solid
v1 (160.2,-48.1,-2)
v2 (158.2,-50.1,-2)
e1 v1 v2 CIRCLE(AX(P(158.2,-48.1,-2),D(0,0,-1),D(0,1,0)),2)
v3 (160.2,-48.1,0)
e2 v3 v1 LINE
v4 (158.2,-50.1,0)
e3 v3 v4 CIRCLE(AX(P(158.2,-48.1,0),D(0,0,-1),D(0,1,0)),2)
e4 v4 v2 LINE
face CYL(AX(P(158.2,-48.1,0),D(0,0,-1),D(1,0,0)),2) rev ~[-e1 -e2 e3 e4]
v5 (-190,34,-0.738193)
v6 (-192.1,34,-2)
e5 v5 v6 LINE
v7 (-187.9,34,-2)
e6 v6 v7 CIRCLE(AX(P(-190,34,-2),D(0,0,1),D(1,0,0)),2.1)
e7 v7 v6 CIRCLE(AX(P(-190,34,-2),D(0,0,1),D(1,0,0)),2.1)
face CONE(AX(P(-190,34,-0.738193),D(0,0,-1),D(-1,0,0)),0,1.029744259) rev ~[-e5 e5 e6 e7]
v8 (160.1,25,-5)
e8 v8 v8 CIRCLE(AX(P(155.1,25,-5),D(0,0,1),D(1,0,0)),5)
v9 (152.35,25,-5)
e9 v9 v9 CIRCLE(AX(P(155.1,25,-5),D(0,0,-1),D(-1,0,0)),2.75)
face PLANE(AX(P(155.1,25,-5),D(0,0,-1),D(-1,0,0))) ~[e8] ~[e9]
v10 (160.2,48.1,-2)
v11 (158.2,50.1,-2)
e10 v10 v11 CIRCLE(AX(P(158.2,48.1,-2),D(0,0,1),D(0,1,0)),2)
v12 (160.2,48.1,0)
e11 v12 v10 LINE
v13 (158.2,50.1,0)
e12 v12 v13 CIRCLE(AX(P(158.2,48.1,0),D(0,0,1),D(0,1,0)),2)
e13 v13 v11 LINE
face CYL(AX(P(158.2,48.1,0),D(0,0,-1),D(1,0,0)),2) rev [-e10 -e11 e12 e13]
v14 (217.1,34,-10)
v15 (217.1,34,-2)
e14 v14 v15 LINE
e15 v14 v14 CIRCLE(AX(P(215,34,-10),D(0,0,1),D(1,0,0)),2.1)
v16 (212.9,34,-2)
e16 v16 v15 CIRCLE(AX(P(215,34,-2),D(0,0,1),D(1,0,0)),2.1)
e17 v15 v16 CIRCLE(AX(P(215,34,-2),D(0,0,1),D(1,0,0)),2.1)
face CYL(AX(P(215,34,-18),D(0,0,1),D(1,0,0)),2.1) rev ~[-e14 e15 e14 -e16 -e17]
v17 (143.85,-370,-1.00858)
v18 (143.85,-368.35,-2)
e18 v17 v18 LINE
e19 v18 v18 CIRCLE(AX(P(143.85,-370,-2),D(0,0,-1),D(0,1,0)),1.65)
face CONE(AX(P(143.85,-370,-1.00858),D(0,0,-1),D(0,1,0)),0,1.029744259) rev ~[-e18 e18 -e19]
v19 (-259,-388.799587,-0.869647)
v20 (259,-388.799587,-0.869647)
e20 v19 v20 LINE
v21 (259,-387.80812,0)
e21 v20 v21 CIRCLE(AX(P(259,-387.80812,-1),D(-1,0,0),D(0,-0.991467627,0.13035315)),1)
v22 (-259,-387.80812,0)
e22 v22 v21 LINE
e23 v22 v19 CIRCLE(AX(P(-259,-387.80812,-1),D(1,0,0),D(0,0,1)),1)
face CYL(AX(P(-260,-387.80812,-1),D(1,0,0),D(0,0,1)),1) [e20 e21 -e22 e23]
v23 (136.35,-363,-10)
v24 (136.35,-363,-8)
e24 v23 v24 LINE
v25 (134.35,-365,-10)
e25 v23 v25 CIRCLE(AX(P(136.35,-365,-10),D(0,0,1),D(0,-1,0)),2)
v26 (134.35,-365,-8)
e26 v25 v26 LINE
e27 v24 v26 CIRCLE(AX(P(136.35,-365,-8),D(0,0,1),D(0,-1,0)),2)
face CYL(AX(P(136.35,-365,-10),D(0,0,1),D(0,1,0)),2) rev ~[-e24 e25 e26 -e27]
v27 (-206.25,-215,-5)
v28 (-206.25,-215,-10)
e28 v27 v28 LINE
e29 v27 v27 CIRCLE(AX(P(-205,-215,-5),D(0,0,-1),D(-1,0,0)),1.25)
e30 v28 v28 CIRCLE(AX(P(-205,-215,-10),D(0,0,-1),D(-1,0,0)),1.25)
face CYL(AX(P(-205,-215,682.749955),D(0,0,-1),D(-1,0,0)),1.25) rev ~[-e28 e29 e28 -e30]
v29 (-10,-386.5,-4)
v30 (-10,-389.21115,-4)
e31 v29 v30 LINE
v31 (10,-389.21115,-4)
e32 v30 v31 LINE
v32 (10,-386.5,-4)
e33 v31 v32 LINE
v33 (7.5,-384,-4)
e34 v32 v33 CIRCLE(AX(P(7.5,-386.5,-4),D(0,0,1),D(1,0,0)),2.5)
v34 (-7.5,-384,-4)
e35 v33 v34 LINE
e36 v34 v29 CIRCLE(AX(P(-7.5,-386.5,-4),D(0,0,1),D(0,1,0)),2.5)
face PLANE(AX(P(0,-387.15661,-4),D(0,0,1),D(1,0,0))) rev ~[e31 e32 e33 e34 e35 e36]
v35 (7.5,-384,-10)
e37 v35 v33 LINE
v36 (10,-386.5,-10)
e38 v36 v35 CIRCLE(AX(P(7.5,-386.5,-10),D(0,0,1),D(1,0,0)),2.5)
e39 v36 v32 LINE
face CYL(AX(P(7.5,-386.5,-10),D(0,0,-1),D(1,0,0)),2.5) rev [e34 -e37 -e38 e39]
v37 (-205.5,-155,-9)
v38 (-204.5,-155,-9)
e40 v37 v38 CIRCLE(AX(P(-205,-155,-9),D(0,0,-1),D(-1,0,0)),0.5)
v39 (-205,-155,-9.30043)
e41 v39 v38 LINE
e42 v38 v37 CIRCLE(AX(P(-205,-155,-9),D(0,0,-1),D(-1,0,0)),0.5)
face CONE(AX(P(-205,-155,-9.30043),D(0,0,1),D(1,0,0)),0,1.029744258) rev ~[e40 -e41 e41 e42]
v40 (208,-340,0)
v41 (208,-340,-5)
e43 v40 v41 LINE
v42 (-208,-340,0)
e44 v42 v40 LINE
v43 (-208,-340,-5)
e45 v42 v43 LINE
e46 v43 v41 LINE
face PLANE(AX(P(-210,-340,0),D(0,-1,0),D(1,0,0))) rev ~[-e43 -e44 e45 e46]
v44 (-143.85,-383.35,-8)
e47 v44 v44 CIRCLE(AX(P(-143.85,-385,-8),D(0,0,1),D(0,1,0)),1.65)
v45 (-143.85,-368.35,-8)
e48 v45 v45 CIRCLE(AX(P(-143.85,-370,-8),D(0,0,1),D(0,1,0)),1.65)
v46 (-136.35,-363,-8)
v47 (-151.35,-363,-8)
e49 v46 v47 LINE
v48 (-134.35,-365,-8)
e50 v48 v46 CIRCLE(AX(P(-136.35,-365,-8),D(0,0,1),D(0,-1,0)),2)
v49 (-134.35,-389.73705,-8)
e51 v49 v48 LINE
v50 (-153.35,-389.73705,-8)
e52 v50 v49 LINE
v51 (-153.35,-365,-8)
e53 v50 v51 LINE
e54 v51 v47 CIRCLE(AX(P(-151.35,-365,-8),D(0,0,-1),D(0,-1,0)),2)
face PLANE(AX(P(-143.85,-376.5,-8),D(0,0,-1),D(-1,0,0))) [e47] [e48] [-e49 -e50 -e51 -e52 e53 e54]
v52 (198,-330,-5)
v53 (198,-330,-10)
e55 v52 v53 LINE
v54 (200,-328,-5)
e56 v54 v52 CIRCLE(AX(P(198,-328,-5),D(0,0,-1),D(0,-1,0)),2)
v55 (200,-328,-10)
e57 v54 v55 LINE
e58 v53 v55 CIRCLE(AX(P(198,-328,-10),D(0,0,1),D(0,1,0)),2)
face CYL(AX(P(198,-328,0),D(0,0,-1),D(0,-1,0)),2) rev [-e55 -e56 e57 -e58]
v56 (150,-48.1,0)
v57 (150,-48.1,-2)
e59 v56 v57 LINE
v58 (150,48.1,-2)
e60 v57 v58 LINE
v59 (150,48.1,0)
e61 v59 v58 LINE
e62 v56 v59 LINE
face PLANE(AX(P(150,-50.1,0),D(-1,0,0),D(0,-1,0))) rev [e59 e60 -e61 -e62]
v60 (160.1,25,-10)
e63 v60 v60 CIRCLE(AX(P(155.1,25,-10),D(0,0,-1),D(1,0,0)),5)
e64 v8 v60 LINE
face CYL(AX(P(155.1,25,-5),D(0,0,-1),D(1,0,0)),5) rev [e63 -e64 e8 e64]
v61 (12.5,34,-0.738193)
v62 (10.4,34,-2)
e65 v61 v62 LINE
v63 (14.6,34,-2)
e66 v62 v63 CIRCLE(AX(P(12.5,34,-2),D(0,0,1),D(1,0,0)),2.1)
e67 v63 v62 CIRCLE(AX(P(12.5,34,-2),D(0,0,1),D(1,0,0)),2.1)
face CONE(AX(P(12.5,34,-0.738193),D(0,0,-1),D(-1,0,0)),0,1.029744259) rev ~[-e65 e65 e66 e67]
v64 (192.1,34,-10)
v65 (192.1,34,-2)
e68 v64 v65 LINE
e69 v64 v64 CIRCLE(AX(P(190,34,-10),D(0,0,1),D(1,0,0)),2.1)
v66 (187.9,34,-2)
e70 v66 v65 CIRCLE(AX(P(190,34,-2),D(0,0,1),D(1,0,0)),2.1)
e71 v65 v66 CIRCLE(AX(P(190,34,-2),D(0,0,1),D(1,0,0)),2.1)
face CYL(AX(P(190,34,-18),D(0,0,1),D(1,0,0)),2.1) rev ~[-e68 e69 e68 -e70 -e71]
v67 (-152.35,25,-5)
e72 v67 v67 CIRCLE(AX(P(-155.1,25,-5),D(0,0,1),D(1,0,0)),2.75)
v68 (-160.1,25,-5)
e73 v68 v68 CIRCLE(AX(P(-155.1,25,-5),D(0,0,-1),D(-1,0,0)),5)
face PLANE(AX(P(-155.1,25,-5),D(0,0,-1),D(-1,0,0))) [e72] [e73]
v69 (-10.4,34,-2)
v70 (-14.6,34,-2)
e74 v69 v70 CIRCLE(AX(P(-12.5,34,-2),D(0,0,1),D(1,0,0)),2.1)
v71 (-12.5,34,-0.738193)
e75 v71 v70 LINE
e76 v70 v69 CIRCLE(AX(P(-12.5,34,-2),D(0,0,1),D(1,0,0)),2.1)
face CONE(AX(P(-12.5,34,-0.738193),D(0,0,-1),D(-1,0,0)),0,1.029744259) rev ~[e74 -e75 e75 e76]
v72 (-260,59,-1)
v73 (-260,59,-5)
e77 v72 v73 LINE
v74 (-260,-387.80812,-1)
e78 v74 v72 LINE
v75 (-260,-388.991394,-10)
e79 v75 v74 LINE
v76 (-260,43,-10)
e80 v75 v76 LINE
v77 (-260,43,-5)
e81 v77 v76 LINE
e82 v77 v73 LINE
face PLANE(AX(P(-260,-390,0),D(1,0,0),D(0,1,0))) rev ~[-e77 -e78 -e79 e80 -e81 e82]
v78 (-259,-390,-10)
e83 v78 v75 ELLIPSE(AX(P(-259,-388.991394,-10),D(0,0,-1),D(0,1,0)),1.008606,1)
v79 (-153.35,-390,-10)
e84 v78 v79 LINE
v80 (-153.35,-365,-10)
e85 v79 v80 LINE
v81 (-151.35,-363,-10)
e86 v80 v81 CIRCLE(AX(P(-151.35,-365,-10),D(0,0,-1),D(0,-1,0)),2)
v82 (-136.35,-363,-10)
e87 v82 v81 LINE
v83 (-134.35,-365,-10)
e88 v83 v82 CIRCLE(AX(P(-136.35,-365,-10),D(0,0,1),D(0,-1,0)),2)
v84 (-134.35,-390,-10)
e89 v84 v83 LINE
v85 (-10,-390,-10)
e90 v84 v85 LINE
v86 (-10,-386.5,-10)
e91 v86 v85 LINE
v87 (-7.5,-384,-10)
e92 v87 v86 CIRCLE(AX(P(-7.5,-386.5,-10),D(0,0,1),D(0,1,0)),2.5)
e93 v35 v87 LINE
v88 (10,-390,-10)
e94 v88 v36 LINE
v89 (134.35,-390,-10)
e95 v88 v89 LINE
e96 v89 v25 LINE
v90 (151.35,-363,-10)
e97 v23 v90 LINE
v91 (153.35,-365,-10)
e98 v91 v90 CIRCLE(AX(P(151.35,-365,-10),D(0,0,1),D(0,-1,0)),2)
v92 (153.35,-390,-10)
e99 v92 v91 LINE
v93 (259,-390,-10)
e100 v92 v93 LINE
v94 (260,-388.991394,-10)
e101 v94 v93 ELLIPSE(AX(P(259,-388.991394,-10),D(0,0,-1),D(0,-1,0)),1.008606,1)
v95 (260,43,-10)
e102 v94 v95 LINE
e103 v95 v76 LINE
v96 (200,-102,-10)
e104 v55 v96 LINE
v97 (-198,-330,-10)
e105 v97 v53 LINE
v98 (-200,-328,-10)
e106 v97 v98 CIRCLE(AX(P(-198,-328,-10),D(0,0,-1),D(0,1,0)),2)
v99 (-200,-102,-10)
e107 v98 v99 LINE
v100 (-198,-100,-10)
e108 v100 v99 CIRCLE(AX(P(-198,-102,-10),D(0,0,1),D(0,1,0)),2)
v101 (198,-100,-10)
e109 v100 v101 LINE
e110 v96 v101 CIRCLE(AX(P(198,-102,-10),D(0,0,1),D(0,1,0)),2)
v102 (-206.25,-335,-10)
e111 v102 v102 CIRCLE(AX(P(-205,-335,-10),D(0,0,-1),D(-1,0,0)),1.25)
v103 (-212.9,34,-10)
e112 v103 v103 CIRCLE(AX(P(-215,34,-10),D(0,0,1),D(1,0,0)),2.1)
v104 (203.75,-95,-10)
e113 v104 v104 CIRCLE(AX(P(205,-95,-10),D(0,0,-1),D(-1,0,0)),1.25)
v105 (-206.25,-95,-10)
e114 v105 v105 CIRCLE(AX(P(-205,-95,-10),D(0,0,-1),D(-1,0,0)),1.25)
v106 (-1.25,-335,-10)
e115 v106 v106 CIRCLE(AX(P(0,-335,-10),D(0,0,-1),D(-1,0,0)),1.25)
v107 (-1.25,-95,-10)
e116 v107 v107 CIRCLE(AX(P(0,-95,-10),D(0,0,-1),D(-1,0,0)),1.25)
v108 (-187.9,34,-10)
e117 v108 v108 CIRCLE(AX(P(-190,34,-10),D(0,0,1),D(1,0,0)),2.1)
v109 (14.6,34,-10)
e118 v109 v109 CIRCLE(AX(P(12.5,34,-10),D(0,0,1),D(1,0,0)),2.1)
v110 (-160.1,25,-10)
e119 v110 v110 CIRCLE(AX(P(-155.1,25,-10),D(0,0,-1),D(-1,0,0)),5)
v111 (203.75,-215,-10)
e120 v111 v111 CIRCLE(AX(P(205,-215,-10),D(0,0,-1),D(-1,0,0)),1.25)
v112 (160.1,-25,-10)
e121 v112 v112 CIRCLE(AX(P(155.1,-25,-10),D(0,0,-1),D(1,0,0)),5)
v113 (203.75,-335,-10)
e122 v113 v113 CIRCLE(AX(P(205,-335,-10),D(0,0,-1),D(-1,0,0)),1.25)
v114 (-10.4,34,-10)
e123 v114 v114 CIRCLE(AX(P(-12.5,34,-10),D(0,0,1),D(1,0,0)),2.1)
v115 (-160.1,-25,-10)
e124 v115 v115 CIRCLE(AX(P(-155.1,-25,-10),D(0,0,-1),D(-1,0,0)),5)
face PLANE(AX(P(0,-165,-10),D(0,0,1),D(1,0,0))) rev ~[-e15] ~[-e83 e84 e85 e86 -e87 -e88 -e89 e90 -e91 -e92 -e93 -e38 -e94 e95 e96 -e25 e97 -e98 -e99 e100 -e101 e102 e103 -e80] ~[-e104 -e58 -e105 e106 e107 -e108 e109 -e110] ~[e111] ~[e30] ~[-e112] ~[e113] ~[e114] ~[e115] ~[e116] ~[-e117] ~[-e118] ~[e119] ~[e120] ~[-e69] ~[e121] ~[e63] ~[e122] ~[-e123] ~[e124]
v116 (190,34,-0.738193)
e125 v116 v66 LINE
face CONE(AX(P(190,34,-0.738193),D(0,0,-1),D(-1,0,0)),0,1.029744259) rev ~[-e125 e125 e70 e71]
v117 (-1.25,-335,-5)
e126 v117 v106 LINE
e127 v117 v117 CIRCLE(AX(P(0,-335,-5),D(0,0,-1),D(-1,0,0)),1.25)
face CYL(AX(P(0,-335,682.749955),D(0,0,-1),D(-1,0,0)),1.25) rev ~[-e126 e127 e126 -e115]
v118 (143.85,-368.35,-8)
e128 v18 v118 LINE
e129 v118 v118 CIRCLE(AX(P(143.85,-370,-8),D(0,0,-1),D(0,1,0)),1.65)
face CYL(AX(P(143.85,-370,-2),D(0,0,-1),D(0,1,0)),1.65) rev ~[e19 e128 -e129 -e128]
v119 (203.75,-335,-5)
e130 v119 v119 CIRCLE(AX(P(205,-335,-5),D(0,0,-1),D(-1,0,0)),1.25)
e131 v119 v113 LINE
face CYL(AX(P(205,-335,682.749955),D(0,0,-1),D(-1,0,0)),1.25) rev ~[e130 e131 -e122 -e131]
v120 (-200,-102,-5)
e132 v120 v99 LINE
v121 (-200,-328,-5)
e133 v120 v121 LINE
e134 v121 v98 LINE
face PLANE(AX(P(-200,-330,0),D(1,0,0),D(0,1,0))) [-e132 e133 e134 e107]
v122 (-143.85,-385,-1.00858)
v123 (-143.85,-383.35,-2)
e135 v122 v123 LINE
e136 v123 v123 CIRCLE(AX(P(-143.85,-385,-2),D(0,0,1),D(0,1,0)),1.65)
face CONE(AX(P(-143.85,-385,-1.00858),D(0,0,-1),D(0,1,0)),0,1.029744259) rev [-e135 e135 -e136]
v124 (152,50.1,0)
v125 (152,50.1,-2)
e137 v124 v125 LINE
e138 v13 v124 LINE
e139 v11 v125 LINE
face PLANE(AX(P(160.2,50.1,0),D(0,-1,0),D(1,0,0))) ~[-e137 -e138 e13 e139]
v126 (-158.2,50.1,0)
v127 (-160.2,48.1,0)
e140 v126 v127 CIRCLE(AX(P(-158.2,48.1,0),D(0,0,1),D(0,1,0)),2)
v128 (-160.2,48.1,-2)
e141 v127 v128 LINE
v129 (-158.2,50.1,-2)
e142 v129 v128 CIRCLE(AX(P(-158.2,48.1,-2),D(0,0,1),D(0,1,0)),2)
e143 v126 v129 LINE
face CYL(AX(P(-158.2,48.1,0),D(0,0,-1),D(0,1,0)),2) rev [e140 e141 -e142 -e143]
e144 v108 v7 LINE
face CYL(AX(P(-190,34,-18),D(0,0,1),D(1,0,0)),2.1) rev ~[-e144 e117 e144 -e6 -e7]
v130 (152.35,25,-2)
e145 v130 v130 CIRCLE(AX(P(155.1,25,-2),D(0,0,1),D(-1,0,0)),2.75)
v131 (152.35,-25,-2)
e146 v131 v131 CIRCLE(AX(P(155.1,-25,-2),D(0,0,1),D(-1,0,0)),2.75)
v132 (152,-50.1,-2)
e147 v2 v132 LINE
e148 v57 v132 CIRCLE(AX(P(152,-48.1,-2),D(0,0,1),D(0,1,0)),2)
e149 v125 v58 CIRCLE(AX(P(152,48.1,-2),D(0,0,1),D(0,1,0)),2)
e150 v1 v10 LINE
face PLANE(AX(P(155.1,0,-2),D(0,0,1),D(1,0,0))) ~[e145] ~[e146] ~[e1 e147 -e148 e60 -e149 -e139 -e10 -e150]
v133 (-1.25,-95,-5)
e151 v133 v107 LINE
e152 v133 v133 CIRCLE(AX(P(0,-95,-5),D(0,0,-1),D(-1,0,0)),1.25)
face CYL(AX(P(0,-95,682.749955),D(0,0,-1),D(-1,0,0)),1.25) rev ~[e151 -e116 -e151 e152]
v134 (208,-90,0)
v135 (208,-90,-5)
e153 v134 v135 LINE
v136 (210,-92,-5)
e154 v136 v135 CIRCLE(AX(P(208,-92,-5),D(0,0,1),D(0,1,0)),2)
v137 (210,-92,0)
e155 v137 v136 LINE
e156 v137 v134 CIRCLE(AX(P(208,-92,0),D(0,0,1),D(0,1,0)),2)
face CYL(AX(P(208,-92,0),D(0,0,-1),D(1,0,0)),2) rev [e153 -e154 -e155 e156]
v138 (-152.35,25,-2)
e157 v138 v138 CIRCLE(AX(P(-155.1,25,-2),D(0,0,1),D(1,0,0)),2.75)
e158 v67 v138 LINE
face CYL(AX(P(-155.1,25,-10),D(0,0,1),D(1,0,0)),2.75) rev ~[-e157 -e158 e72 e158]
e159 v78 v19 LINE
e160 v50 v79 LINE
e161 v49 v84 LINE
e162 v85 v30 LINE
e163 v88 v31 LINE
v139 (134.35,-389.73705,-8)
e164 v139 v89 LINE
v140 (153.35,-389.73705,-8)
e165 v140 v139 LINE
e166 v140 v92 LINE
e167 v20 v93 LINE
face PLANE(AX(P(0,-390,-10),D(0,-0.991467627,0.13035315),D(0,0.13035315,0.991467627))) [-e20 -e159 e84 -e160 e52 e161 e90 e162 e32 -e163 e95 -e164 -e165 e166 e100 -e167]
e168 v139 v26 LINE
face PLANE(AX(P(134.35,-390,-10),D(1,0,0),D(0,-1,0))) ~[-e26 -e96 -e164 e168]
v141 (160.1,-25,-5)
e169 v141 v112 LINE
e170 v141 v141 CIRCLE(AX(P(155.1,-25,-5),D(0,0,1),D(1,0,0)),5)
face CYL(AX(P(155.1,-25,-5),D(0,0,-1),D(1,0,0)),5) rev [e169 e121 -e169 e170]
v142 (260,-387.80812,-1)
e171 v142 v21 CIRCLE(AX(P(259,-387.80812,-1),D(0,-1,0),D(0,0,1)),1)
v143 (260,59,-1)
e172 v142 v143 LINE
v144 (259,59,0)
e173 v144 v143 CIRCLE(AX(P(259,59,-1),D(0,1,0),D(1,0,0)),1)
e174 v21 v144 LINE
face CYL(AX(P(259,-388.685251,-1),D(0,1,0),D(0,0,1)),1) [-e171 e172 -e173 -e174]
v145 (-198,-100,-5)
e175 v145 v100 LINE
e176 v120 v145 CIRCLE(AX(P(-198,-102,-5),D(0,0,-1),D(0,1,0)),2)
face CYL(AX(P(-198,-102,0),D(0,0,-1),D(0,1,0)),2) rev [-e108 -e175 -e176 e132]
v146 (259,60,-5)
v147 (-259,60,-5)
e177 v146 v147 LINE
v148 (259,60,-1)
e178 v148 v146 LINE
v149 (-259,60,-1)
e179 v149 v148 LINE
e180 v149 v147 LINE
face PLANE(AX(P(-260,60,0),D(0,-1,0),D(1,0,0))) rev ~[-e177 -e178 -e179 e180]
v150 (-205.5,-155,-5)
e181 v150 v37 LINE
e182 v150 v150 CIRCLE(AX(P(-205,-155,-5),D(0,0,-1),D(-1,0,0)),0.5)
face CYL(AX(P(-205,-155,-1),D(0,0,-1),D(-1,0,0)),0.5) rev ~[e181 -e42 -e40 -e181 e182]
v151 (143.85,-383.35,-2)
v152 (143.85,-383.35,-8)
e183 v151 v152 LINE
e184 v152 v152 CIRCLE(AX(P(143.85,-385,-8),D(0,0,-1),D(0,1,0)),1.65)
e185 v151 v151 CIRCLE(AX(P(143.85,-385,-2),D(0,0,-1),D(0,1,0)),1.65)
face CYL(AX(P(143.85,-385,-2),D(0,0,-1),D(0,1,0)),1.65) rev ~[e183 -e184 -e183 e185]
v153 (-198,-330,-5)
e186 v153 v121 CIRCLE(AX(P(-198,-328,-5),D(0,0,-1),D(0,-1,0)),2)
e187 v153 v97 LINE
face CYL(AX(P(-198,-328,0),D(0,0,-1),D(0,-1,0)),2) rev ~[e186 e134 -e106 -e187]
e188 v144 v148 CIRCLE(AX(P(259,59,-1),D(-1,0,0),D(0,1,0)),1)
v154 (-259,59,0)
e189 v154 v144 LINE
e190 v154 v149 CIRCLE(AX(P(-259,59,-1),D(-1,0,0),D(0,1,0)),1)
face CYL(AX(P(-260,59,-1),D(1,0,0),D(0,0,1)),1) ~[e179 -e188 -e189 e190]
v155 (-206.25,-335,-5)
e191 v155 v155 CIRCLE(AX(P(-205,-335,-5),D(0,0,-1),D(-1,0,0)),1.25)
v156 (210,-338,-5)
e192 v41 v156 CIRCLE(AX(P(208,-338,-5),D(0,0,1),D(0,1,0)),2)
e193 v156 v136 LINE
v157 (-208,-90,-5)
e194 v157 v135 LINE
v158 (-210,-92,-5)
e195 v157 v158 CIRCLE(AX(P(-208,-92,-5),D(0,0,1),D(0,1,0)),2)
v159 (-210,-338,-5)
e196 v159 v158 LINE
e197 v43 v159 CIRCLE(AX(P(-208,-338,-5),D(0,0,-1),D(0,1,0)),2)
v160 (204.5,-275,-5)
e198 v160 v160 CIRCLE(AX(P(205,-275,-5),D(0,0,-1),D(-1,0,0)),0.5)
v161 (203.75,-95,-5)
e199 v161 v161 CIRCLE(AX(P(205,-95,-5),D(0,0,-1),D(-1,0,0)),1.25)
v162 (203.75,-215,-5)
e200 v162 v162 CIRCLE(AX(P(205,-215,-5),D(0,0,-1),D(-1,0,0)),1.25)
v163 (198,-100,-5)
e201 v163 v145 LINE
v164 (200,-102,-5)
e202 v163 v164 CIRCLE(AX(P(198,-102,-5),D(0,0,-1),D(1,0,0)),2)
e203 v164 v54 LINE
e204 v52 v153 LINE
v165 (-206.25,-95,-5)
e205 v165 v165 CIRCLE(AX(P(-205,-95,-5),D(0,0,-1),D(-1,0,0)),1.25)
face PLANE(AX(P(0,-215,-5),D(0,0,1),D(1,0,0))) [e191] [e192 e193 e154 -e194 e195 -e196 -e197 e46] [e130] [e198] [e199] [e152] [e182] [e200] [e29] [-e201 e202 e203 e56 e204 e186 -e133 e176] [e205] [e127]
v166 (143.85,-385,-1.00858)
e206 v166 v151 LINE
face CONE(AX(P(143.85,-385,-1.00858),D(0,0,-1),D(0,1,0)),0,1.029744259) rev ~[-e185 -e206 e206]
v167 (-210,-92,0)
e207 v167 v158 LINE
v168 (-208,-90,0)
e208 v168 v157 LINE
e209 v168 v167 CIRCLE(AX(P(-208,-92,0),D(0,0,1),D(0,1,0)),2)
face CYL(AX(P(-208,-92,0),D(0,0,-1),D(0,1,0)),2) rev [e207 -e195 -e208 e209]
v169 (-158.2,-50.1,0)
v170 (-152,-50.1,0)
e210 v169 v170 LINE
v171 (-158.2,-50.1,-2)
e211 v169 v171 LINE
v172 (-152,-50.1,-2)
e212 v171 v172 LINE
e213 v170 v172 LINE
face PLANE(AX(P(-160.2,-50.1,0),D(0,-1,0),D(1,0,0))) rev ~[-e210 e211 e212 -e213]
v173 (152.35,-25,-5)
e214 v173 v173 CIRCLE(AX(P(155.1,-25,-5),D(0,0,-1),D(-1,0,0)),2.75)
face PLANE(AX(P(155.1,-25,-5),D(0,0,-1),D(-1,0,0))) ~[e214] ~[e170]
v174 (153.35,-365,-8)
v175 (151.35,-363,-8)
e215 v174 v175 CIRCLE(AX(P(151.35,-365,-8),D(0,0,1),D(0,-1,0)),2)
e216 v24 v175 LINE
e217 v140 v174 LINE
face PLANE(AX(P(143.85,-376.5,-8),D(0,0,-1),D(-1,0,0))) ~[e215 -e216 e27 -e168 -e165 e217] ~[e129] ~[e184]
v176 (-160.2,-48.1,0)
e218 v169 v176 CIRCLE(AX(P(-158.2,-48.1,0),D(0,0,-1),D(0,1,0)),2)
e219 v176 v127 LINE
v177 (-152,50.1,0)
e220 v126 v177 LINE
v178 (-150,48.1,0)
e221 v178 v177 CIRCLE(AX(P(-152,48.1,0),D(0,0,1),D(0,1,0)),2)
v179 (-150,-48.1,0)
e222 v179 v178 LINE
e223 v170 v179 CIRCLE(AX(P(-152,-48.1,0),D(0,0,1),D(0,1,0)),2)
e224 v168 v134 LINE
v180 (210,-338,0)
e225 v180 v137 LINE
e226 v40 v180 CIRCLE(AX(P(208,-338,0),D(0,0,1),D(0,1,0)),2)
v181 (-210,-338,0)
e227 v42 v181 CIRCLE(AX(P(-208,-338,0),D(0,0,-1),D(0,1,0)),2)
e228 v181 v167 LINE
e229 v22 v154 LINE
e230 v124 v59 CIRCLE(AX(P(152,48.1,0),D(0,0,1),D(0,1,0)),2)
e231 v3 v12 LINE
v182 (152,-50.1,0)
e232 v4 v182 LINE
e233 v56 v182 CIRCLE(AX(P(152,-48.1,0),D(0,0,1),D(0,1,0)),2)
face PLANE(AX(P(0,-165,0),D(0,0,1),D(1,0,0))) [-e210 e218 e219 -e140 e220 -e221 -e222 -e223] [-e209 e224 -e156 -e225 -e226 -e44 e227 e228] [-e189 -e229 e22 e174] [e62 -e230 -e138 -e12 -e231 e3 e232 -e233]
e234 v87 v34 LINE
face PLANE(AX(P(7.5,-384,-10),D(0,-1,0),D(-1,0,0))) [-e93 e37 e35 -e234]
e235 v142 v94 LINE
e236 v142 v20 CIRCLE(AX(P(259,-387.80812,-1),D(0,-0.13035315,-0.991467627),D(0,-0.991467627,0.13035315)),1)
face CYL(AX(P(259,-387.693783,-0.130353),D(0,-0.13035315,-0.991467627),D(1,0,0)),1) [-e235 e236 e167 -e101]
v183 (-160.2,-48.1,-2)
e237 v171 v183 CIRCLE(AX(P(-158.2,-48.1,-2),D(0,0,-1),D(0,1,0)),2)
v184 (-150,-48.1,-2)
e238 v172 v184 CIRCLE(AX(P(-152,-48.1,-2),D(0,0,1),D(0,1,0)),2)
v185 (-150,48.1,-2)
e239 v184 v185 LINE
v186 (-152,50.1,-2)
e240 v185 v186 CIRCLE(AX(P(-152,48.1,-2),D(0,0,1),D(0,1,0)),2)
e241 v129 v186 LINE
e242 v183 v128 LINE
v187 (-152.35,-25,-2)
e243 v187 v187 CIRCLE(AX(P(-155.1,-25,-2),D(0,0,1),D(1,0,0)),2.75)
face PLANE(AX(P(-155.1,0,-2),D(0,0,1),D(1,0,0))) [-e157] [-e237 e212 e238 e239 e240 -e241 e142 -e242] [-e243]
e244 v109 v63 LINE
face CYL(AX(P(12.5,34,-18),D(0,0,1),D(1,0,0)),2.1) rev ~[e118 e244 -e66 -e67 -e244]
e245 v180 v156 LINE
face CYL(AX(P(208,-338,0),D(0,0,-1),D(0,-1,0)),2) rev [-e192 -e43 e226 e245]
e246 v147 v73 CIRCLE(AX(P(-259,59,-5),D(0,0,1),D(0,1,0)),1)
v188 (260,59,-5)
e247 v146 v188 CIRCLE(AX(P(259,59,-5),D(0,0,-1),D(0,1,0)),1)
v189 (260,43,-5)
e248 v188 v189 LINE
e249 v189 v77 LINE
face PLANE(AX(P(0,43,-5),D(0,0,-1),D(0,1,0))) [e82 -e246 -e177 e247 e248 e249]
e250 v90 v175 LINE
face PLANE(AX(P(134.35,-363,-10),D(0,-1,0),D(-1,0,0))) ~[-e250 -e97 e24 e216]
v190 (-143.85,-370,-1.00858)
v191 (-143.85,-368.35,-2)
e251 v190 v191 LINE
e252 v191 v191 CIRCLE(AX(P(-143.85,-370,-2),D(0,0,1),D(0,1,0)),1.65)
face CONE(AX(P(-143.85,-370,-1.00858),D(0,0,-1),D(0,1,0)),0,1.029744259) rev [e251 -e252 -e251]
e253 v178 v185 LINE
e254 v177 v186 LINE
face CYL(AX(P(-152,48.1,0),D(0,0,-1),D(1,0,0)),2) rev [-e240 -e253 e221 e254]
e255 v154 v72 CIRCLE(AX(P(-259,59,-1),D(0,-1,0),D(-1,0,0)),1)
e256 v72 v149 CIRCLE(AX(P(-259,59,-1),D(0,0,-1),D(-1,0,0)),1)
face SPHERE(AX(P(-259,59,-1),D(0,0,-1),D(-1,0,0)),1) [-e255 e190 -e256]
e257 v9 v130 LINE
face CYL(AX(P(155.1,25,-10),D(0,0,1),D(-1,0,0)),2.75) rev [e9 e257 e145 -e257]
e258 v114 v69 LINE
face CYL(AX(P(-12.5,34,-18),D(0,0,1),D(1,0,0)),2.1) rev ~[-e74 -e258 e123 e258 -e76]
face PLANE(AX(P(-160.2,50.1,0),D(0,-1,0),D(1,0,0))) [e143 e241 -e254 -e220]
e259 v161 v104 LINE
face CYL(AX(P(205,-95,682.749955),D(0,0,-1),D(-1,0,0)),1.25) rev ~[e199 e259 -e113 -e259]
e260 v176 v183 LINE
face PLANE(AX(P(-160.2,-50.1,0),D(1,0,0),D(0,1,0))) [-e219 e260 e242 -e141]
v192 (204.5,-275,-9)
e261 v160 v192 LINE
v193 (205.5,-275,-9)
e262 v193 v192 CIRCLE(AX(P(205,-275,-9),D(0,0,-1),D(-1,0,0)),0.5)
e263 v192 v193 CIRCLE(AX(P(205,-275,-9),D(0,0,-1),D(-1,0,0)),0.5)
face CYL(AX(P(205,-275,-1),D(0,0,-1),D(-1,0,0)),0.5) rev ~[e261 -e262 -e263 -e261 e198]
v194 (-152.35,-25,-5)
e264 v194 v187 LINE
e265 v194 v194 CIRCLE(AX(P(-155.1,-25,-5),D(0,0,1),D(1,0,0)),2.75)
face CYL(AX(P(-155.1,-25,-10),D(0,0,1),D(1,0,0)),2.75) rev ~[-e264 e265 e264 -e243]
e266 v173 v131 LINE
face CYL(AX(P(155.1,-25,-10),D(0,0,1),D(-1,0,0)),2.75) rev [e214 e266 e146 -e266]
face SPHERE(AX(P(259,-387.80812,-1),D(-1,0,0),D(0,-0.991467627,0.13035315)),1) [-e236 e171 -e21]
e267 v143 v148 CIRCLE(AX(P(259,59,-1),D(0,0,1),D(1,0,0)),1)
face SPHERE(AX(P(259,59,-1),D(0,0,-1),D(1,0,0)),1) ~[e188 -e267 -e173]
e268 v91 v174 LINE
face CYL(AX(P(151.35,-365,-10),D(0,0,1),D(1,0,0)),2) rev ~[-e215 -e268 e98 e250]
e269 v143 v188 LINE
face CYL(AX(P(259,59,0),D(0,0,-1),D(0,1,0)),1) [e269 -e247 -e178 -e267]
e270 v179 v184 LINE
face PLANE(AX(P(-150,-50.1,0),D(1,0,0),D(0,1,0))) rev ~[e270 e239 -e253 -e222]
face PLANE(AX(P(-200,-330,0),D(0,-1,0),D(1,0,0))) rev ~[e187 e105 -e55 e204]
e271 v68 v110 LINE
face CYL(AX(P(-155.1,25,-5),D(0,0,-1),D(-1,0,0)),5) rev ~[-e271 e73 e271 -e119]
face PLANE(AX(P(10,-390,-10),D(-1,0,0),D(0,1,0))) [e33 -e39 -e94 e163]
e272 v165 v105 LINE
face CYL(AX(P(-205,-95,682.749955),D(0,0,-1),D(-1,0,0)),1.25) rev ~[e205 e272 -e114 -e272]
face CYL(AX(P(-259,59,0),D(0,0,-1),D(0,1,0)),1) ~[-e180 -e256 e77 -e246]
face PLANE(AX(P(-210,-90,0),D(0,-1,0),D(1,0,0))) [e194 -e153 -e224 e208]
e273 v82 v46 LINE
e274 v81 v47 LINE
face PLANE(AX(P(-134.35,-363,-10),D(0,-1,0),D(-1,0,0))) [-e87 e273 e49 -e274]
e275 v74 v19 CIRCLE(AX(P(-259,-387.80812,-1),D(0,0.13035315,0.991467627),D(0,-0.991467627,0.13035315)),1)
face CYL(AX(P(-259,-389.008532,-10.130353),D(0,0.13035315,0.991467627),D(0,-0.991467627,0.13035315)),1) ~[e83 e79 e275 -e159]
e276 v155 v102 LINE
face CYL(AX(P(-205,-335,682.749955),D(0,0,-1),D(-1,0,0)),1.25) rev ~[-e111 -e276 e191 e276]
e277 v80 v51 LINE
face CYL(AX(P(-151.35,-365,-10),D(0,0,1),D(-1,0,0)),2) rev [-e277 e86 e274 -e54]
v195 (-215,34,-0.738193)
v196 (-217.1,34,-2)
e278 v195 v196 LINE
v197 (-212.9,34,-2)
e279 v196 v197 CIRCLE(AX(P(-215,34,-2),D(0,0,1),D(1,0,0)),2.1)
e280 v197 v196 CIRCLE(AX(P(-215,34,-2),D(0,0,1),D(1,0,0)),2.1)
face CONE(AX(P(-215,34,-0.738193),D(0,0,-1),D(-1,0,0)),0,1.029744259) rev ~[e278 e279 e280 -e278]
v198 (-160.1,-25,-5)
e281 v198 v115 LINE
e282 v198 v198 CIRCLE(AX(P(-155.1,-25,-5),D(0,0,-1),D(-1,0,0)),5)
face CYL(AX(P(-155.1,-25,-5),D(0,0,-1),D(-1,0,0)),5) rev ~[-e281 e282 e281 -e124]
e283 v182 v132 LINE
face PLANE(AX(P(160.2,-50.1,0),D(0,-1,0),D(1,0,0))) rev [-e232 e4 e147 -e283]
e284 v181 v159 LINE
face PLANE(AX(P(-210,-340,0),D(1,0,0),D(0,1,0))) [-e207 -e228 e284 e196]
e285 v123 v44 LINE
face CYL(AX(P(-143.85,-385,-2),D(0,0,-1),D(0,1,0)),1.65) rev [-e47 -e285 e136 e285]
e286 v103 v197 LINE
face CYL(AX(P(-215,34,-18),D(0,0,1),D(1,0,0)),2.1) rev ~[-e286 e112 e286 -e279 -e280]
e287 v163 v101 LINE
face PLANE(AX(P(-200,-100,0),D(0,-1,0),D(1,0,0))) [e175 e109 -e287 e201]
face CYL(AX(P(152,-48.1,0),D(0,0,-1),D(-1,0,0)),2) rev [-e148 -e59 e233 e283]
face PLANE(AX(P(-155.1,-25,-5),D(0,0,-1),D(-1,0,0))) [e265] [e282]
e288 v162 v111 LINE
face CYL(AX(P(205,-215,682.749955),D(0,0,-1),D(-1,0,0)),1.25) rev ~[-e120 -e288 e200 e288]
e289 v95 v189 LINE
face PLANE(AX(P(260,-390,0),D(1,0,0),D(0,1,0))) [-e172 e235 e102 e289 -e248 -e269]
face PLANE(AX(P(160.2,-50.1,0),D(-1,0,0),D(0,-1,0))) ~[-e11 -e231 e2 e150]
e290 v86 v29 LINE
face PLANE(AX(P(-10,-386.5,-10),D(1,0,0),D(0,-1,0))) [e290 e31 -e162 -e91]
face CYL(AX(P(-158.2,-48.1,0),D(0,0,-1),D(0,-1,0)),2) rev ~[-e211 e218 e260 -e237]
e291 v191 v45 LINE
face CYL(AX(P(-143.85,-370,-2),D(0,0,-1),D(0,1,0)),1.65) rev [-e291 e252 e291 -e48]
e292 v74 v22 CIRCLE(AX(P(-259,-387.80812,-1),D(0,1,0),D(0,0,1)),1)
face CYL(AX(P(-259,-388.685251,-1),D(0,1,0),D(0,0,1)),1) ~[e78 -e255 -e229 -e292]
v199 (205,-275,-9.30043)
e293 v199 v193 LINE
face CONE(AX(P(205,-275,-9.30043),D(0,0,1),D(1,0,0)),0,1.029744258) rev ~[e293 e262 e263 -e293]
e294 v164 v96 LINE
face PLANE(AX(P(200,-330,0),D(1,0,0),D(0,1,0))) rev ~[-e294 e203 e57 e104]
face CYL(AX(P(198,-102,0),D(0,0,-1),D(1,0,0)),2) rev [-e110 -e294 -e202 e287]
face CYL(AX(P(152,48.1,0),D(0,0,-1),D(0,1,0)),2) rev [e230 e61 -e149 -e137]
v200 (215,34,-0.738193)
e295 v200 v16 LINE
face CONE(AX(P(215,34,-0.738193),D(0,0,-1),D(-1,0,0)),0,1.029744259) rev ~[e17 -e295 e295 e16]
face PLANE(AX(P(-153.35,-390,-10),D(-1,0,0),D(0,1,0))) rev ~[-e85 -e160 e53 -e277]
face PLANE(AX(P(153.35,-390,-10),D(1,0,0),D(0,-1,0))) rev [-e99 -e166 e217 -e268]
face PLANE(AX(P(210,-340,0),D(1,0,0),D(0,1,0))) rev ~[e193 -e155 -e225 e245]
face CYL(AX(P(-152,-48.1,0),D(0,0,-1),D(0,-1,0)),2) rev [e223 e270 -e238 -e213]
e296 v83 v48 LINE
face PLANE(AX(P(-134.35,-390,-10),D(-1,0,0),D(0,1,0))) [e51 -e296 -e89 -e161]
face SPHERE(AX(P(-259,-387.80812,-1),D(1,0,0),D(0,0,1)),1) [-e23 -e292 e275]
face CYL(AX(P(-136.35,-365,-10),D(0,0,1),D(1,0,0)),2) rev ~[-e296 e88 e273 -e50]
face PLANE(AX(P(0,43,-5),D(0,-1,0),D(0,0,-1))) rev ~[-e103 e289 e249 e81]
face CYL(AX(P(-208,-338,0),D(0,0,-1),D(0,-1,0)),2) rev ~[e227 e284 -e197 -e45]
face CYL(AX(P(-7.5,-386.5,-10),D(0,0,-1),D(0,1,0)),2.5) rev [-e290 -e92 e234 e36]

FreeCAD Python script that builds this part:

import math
import FreeCAD as App
import Part
import Sketcher

V = App.Vector
Q = App.Units.Quantity


def edges_at(feature, points):
    """Names of the edges that pass closest to the given points."""
    edges = feature.Shape.Edges
    near = lambda p: min(range(len(edges)), key=lambda i: edges[i].distToShape(Part.Vertex(*p))[0])
    return sorted({f"Edge{near(p) + 1}" for p in points})


def add_polygon(sketch, points):
    """Adds a closed chain of lines whose ends are joined by coincident constraints."""
    first, n = sketch.GeometryCount, len(points)
    for a, b in zip(points, points[1:] + points[:1]):
        sketch.addGeometry(Part.LineSegment(App.Vector(*a, 0), App.Vector(*b, 0)), False)
    for i in range(n):
        sketch.addConstraint(Sketcher.Constraint("Coincident", first + i, 2, first + (i + 1) % n, 1))

doc = App.newDocument("Part")
body = doc.addObject("PartDesign::Body", "Body")

# Sketch on XY plane
sketch1 = body.newObject("Sketcher::SketchObject", "Sketch")
sketch1.AttachmentSupport = (doc.getObject("XY_Plane"), [""])
sketch1.MapMode = "FlatFace"
add_polygon(sketch1, [(-260, 60), (-260, -390), (260, -390), (260, 60)])  # lines 0-3
sketch1.addConstraint(Sketcher.Constraint("Vertical", 0))
sketch1.addConstraint(Sketcher.Constraint("Horizontal", 1))
sketch1.addConstraint(Sketcher.Constraint("Vertical", 2))
sketch1.addConstraint(Sketcher.Constraint("Horizontal", 3))
sketch1.addConstraint(Sketcher.Constraint("DistanceX", 1, 1, 1, 2, Q("520 mm")))
sketch1.addConstraint(Sketcher.Constraint("DistanceY", 0, 2, 0, 1, Q("450 mm")))
sketch1.addConstraint(Sketcher.Constraint("DistanceX", 0, 2, -1, 1, Q("260 mm")))
sketch1.addConstraint(Sketcher.Constraint("DistanceY", 0, 2, -1, 1, Q("390 mm")))
pad1 = body.newObject("PartDesign::Pad", "Pad")
pad1.Profile = sketch1
pad1.Length = 10
pad1.Reversed = True

# Sketch on XY plane
sketch2 = body.newObject("Sketcher::SketchObject", "Sketch001")
sketch2.AttachmentSupport = (doc.getObject("XY_Plane"), [""])
sketch2.MapMode = "FlatFace"
add_polygon(sketch2, [(-160, 50), (-160, -50), (-150, -50), (-150, 50)])  # lines 0-3
sketch2.addConstraint(Sketcher.Constraint("Vertical", 0))
sketch2.addConstraint(Sketcher.Constraint("Horizontal", 1))
sketch2.addConstraint(Sketcher.Constraint("Vertical", 2))
sketch2.addConstraint(Sketcher.Constraint("Horizontal", 3))
sketch2.addConstraint(Sketcher.Constraint("DistanceX", 1, 1, 1, 2, Q("10.2 mm")))
sketch2.addConstraint(Sketcher.Constraint("DistanceY", 0, 2, 0, 1, Q("100.2 mm")))
sketch2.addConstraint(Sketcher.Constraint("DistanceX", 1, 2, -1, 1, Q("150 mm")))
sketch2.addConstraint(Sketcher.Constraint("DistanceY", 0, 2, -1, 1, Q("50.1 mm")))
pocket1 = body.newObject("PartDesign::Pocket", "Pocket")
pocket1.Profile = sketch2
pocket1.Length = 2
doc.recompute()

fillet = body.newObject("PartDesign::Fillet", "Fillet")
fillet.Base = (pocket1, edges_at(pocket1, [
    (-150, 50.1, -1),
    (-150, -50.1, -1),
    (-160.2, -50.1, -1),
    (-160.2, 50.1, -1),
]))
fillet.Radius = 2

# Sketch on XY plane
sketch3 = body.newObject("Sketcher::SketchObject", "Sketch002")
sketch3.AttachmentSupport = (doc.getObject("XY_Plane"), [""])
sketch3.MapMode = "FlatFace"
sketch3.AttachmentOffset = App.Placement(V(0, 0, -10), App.Rotation())
sketch3.addGeometry(Part.Circle(V(-155.1, 25, 0), V(0, 0, 1), 2.8), False)
sketch3.addGeometry(Part.Circle(V(-155.1, -25, 0), V(0, 0, 1), 2.8), False)
sketch3.addConstraint(Sketcher.Constraint("Equal", 0, 1))
sketch3.addConstraint(Sketcher.Constraint("Symmetric", 0, 3, 1, 3, -1))
sketch3.addConstraint(Sketcher.Constraint("Diameter", 0, Q("5.5 mm")))
sketch3.addConstraint(Sketcher.Constraint("DistanceY", -1, 1, 0, 3, Q("25 mm")))
sketch3.addConstraint(Sketcher.Constraint("DistanceX", 0, 3, -1, 1, Q("155.1 mm")))
doc.recompute()
hole = body.newObject("PartDesign::Hole", "Hole")
hole.Profile = sketch3
hole.ThreadType = "None"
hole.Diameter = 5.5
hole.DepthType = "ThroughAll"
hole.HoleCutType = "Counterbore"
hole.HoleCutDiameter = 10
hole.HoleCutDepth = 5
hole.Reversed = True
doc.recompute()

mirrored = body.newObject("PartDesign::Mirrored", "Mirrored")
mirrored.Originals = [pocket1, hole]
mirrored.MirrorPlane = (doc.getObject("YZ_Plane"), [""])
body.Tip = mirrored
doc.recompute()

fillet2 = body.newObject("PartDesign::Fillet", "Fillet001")
fillet2.Base = (mirrored, edges_at(mirrored, [
    (150, 50.1, -1),
    (150, -50.1, -1),
    (160.2, -50.1, -1),
    (160.2, 50.1, -1),
]))
fillet2.Radius = 2

# Sketch on XY plane
sketch4 = body.newObject("Sketcher::SketchObject", "Sketch003")
sketch4.AttachmentSupport = (doc.getObject("XY_Plane"), [""])
sketch4.MapMode = "FlatFace"
add_polygon(sketch4, [(-200, -100), (-200, -330), (200, -330), (200, -100)])  # lines 0-3
sketch4.addConstraint(Sketcher.Constraint("Vertical", 0))
sketch4.addConstraint(Sketcher.Constraint("Horizontal", 1))
sketch4.addConstraint(Sketcher.Constraint("Vertical", 2))
sketch4.addConstraint(Sketcher.Constraint("Horizontal", 3))
sketch4.addConstraint(Sketcher.Constraint("DistanceX", 1, 1, 1, 2, Q("400 mm")))
sketch4.addConstraint(Sketcher.Constraint("DistanceY", 0, 2, 0, 1, Q("230 mm")))
sketch4.addConstraint(Sketcher.Constraint("DistanceX", 0, 2, -1, 1, Q("200 mm")))
sketch4.addConstraint(Sketcher.Constraint("DistanceY", 0, 2, -1, 1, Q("330 mm")))
pocket2 = body.newObject("PartDesign::Pocket", "Pocket001")
pocket2.Profile = sketch4
pocket2.Type = "ThroughAll"
doc.recompute()

fillet3 = body.newObject("PartDesign::Fillet", "Fillet002")
fillet3.Base = (pocket2, edges_at(pocket2, [
    (200, -100, -5),
    (200, -330, -5),
    (-200, -330, -5),
    (-200, -100, -5),
]))
fillet3.Radius = 2

# Sketch on XY plane
sketch5 = body.newObject("Sketcher::SketchObject", "Sketch004")
sketch5.AttachmentSupport = (doc.getObject("XY_Plane"), [""])
sketch5.MapMode = "FlatFace"
add_polygon(sketch5, [(-210, -90), (-210, -340), (210, -340), (210, -90)])  # lines 0-3
sketch5.addConstraint(Sketcher.Constraint("Vertical", 0))
sketch5.addConstraint(Sketcher.Constraint("Horizontal", 1))
sketch5.addConstraint(Sketcher.Constraint("Vertical", 2))
sketch5.addConstraint(Sketcher.Constraint("Horizontal", 3))
sketch5.addConstraint(Sketcher.Constraint("DistanceX", 1, 1, 1, 2, Q("420 mm")))
sketch5.addConstraint(Sketcher.Constraint("DistanceY", 0, 2, 0, 1, Q("250 mm")))
sketch5.addConstraint(Sketcher.Constraint("DistanceX", 0, 2, -1, 1, Q("210 mm")))
sketch5.addConstraint(Sketcher.Constraint("DistanceY", 0, 2, -1, 1, Q("340 mm")))
pocket3 = body.newObject("PartDesign::Pocket", "Pocket002")
pocket3.Profile = sketch5
pocket3.Length = 5
doc.recompute()

fillet4 = body.newObject("PartDesign::Fillet", "Fillet003")
fillet4.Base = (pocket3, edges_at(pocket3, [
    (210, -90, -2.5),
    (210, -340, -2.5),
    (-210, -340, -2.5),
    (-210, -90, -2.5),
]))
fillet4.Radius = 2

# Sketch on XY plane
sketch6 = body.newObject("Sketcher::SketchObject", "Sketch005")
sketch6.AttachmentSupport = (doc.getObject("XY_Plane"), [""])
sketch6.MapMode = "FlatFace"
sketch6.AttachmentOffset = App.Placement(V(0, 0, -5), App.Rotation())
sketch6.addGeometry(Part.Circle(V(-205, -95, 0), V(0, 0, 1), 1.2), False)
sketch6.addGeometry(Part.Circle(V(0, -95, 0), V(0, 0, 1), 1.2), False)
sketch6.addGeometry(Part.Circle(V(-205, -215, 0), V(0, 0, 1), 1.2), False)
sketch6.addGeometry(Part.Circle(V(205, -95, 0), V(0, 0, 1), 1.2), False)
sketch6.addGeometry(Part.Circle(V(205, -215, 0), V(0, 0, 1), 1.2), False)
sketch6.addGeometry(Part.Circle(V(205, -335, 0), V(0, 0, 1), 1.2), False)
sketch6.addGeometry(Part.Circle(V(0, -335, 0), V(0, 0, 1), 1.2), False)
sketch6.addGeometry(Part.Circle(V(-205, -335, 0), V(0, 0, 1), 1.2), False)
sketch6.addConstraint(Sketcher.Constraint("Equal", 0, 1))
sketch6.addConstraint(Sketcher.Constraint("Equal", 1, 2))
sketch6.addConstraint(Sketcher.Constraint("Equal", 2, 3))
sketch6.addConstraint(Sketcher.Constraint("Equal", 3, 4))
sketch6.addConstraint(Sketcher.Constraint("Equal", 4, 5))
sketch6.addConstraint(Sketcher.Constraint("Equal", 5, 6))
sketch6.addConstraint(Sketcher.Constraint("Equal", 6, 7))
sketch6.addConstraint(Sketcher.Constraint("Symmetric", 0, 3, 3, 3, -2))
sketch6.addConstraint(Sketcher.Constraint("Symmetric", 2, 3, 4, 3, -2))
sketch6.addConstraint(Sketcher.Constraint("Symmetric", 5, 3, 7, 3, -2))
sketch6.addConstraint(Sketcher.Constraint("PointOnObject", 1, 3, -2))
sketch6.addConstraint(Sketcher.Constraint("PointOnObject", 6, 3, -2))
sketch6.addConstraint(Sketcher.Constraint("Horizontal", 0, 3, 1, 3))
sketch6.addConstraint(Sketcher.Constraint("Horizontal", 5, 3, 6, 3))
sketch6.addConstraint(Sketcher.Constraint("Vertical", 0, 3, 2, 3))
sketch6.addConstraint(Sketcher.Constraint("Vertical", 4, 3, 5, 3))
sketch6.addConstraint(Sketcher.Constraint("Diameter", 0, Q("2.5 mm")))
sketch6.addConstraint(Sketcher.Constraint("DistanceX", 0, 3, -1, 1, Q("205 mm")))
sketch6.addConstraint(Sketcher.Constraint("DistanceY", 0, 3, -1, 1, Q("95 mm")))
sketch6.addConstraint(Sketcher.Constraint("DistanceY", 2, 3, -1, 1, Q("215 mm")))
sketch6.addConstraint(Sketcher.Constraint("DistanceY", 5, 3, -1, 1, Q("335 mm")))
doc.recompute()
hole2 = body.newObject("PartDesign::Hole", "Hole001")
hole2.Profile = sketch6
hole2.ThreadType = "None"
hole2.Diameter = 2.5
hole2.DepthType = "ThroughAll"

# Sketch on XY plane
sketch7 = body.newObject("Sketcher::SketchObject", "Sketch006")
sketch7.AttachmentSupport = (doc.getObject("XY_Plane"), [""])
sketch7.MapMode = "FlatFace"
sketch7.AttachmentOffset = App.Placement(V(0, 0, -10), App.Rotation())
sketch7.addGeometry(Part.LineSegment(V(10, -390, 0), V(-10, -390, 0)), False)
sketch7.addGeometry(Part.LineSegment(V(-10, -390, 0), V(-10, -386.5, 0)), False)
sketch7.addGeometry(Part.ArcOfCircle(Part.Circle(V(-7.5, -386.5, 0), V(0, 0, 1), 2.5), math.radians(90), math.radians(180)), False)
sketch7.addGeometry(Part.LineSegment(V(-7.5, -384, 0), V(7.5, -384, 0)), False)
sketch7.addGeometry(Part.ArcOfCircle(Part.Circle(V(7.5, -386.5, 0), V(0, 0, 1), 2.5), math.radians(0), math.radians(90)), False)
sketch7.addGeometry(Part.LineSegment(V(10, -386.5, 0), V(10, -390, 0)), False)
sketch7.addConstraint(Sketcher.Constraint("Coincident", 0, 2, 1, 1))
sketch7.addConstraint(Sketcher.Constraint("Tangent", 1, 2, 2, 2))
sketch7.addConstraint(Sketcher.Constraint("Tangent", 2, 1, 3, 1))
sketch7.addConstraint(Sketcher.Constraint("Tangent", 3, 2, 4, 2))
sketch7.addConstraint(Sketcher.Constraint("Tangent", 4, 1, 5, 1))
sketch7.addConstraint(Sketcher.Constraint("Coincident", 5, 2, 0, 1))
sketch7.addConstraint(Sketcher.Constraint("Horizontal", 0))
sketch7.addConstraint(Sketcher.Constraint("Vertical", 1))
sketch7.addConstraint(Sketcher.Constraint("Horizontal", 3))
sketch7.addConstraint(Sketcher.Constraint("Vertical", 5))
sketch7.addConstraint(Sketcher.Constraint("Equal", 2, 4))
sketch7.addConstraint(Sketcher.Constraint("Radius", 2, Q("2.5 mm")))
sketch7.addConstraint(Sketcher.Constraint("DistanceX", 0, 2, 0, 1, Q("20 mm")))
sketch7.addConstraint(Sketcher.Constraint("DistanceY", 1, 1, 1, 2, Q("3.5 mm")))
sketch7.addConstraint(Sketcher.Constraint("DistanceX", 0, 2, -1, 1, Q("10 mm")))
sketch7.addConstraint(Sketcher.Constraint("DistanceY", 0, 2, -1, 1, Q("390 mm")))
pocket4 = body.newObject("PartDesign::Pocket", "Pocket003")
pocket4.Profile = sketch7
pocket4.Length = 6
pocket4.Reversed = True

# Sketch on YZ plane
sketch8 = body.newObject("Sketcher::SketchObject", "Sketch007")
sketch8.AttachmentSupport = (doc.getObject("YZ_Plane"), [""])
sketch8.MapMode = "FlatFace"
add_polygon(sketch8, [(-390, -10), (-388.7, 0), (-390, 0)])  # lines 0-2
add_polygon(sketch8, [(60, -5), (43, -5), (43, -10), (60, -10)])  # lines 3-6
sketch8.addConstraint(Sketcher.Constraint("Horizontal", 1))
sketch8.addConstraint(Sketcher.Constraint("Vertical", 2))
sketch8.addConstraint(Sketcher.Constraint("Horizontal", 3))
sketch8.addConstraint(Sketcher.Constraint("Vertical", 4))
sketch8.addConstraint(Sketcher.Constraint("Horizontal", 5))
sketch8.addConstraint(Sketcher.Constraint("Vertical", 6))
sketch8.addConstraint(Sketcher.Constraint("PointOnObject", 0, 2, -1))
sketch8.addConstraint(Sketcher.Constraint("Horizontal", 2, 2, 4, 2))
sketch8.addConstraint(Sketcher.Constraint("DistanceX", 3, 2, 3, 1, Q("17 mm")))
sketch8.addConstraint(Sketcher.Constraint("DistanceY", 2, 2, 2, 1, Q("10 mm")))
sketch8.addConstraint(Sketcher.Constraint("DistanceY", 4, 2, 4, 1, Q("5 mm")))
sketch8.addConstraint(Sketcher.Constraint("DistanceX", 1, 2, -1, 1, Q("390 mm")))
sketch8.addConstraint(Sketcher.Constraint("DistanceX", -1, 1, 3, 2, Q("43 mm")))
sketch8.addConstraint(Sketcher.Constraint("Angle", 0, Q("82.51 deg")))
pocket5 = body.newObject("PartDesign::Pocket", "Pocket004")
pocket5.Profile = sketch8
pocket5.Type = "ThroughAll"
pocket5.Midplane = True
doc.recompute()

fillet5 = body.newObject("PartDesign::Fillet", "Fillet004")
fillet5.Base = (pocket5, edges_at(pocket5, [
    (260, 60, -2.5),
    (-260, 60, -2.5),
    (260, -164.343, 0),
    (-260, -389.343, -5),
    (0, -388.685, 0),
    (260, -389.343, -5),
    (-260, -164.343, 0),
    (0, 60, 0),
]))
fillet5.Radius = 1

# Sketch on XY plane
sketch9 = body.newObject("Sketcher::SketchObject", "Sketch008")
sketch9.AttachmentSupport = (doc.getObject("XY_Plane"), [""])
sketch9.MapMode = "FlatFace"
sketch9.AttachmentOffset = App.Placement(V(0, 0, -10), App.Rotation())
sketch9.addGeometry(Part.Circle(V(215, 34, 0), V(0, 0, 1), 2.1), False)
sketch9.addGeometry(Part.Circle(V(190, 34, 0), V(0, 0, 1), 2.1), False)
sketch9.addGeometry(Part.Circle(V(12.5, 34, 0), V(0, 0, 1), 2.1), False)
sketch9.addGeometry(Part.Circle(V(-12.5, 34, 0), V(0, 0, 1), 2.1), False)
sketch9.addGeometry(Part.Circle(V(-190, 34, 0), V(0, 0, 1), 2.1), False)
sketch9.addGeometry(Part.Circle(V(-215, 34, 0), V(0, 0, 1), 2.1), False)
sketch9.addConstraint(Sketcher.Constraint("Equal", 0, 1))
sketch9.addConstraint(Sketcher.Constraint("Equal", 1, 2))
sketch9.addConstraint(Sketcher.Constraint("Equal", 2, 3))
sketch9.addConstraint(Sketcher.Constraint("Equal", 3, 4))
sketch9.addConstraint(Sketcher.Constraint("Equal", 4, 5))
sketch9.addConstraint(Sketcher.Constraint("Symmetric", 2, 3, 3, 3, -2))
sketch9.addConstraint(Sketcher.Constraint("Symmetric", 1, 3, 4, 3, -2))
sketch9.addConstraint(Sketcher.Constraint("Symmetric", 0, 3, 5, 3, -2))
sketch9.addConstraint(Sketcher.Constraint("Horizontal", 0, 3, 1, 3))
sketch9.addConstraint(Sketcher.Constraint("Horizontal", 1, 3, 2, 3))
sketch9.addConstraint(Sketcher.Constraint("Diameter", 0, Q("4.2 mm")))
sketch9.addConstraint(Sketcher.Constraint("DistanceX", -1, 1, 0, 3, Q("215 mm")))
sketch9.addConstraint(Sketcher.Constraint("DistanceY", -1, 1, 0, 3, Q("34 mm")))
sketch9.addConstraint(Sketcher.Constraint("DistanceX", -1, 1, 1, 3, Q("190 mm")))
sketch9.addConstraint(Sketcher.Constraint("DistanceX", 3, 3, 2, 3, Q("25 mm")))
doc.recompute()
hole3 = body.newObject("PartDesign::Hole", "Hole002")
hole3.Profile = sketch9
hole3.ThreadType = "None"
hole3.Diameter = 4.2
hole3.DepthType = "Dimension"
hole3.Depth = 8
hole3.DrillPoint = "Angled"
hole3.DrillPointAngle = 118
hole3.Reversed = True

# Sketch on XY plane
sketch10 = body.newObject("Sketcher::SketchObject", "Sketch009")
sketch10.AttachmentSupport = (doc.getObject("XY_Plane"), [""])
sketch10.MapMode = "FlatFace"
sketch10.AttachmentOffset = App.Placement(V(0, 0, -10), App.Rotation())
add_polygon(sketch10, [(-134, -363), (-134, -390), (-153, -390), (-153, -363)])  # lines 0-3
sketch10.addConstraint(Sketcher.Constraint("Vertical", 0))
sketch10.addConstraint(Sketcher.Constraint("Horizontal", 1))
sketch10.addConstraint(Sketcher.Constraint("Vertical", 2))
sketch10.addConstraint(Sketcher.Constraint("Horizontal", 3))
sketch10.addConstraint(Sketcher.Constraint("DistanceX", 1, 2, 1, 1, Q("19 mm")))
sketch10.addConstraint(Sketcher.Constraint("DistanceY", 0, 2, 0, 1, Q("27 mm")))
sketch10.addConstraint(Sketcher.Constraint("DistanceY", 0, 2, -1, 1, Q("390 mm")))
sketch10.addConstraint(Sketcher.Constraint("DistanceX", 0, 2, -1, 1, Q("134.35 mm")))
pocket6 = body.newObject("PartDesign::Pocket", "Pocket005")
pocket6.Profile = sketch10
pocket6.Length = 2
pocket6.Reversed = True
doc.recompute()

fillet6 = body.newObject("PartDesign::Fillet", "Fillet005")
fillet6.Base = (pocket6, edges_at(pocket6, [(-153.35, -363, -9), (-134.35, -363, -9)]))
fillet6.Radius = 2

# Sketch on YZ plane
sketch11 = body.newObject("Sketcher::SketchObject", "Sketch010")
sketch11.AttachmentSupport = (doc.getObject("YZ_Plane"), [""])
sketch11.MapMode = "FlatFace"
sketch11.AttachmentOffset = App.Placement(V(0, 0, -143.85), App.Rotation())
add_polygon(sketch11, [(-385, -1), (-385, -8), (-383.4, -8), (-383.4, -2)])  # lines 0-3
sketch11.addGeometry(Part.LineSegment(V(-385, -8, 0), V(-385, -1, 0)), True)  # axis
sketch11.addConstraint(Sketcher.Constraint("Vertical", 0))
sketch11.addConstraint(Sketcher.Constraint("Horizontal", 1))
sketch11.addConstraint(Sketcher.Constraint("Vertical", 2))
sketch11.addConstraint(Sketcher.Constraint("Vertical", 4))
sketch11.addConstraint(Sketcher.Constraint("Coincident", 4, 1, 0, 2))
sketch11.addConstraint(Sketcher.Constraint("Equal", 0, 4))
sketch11.addConstraint(Sketcher.Constraint("DistanceY", 2, 1, 2, 2, Q("6 mm")))
sketch11.addConstraint(Sketcher.Constraint("Angle", 3, Q("149 deg")))
sketch11.addConstraint(Sketcher.Constraint("DistanceX", 0, 2, -1, 1, Q("385 mm")))
sketch11.addConstraint(Sketcher.Constraint("DistanceY", 0, 2, -1, 1, Q("8 mm")))
sketch11.addConstraint(Sketcher.Constraint("DistanceX", 1, 1, 1, 2, Q("1.65 mm")))
groove = body.newObject("PartDesign::Groove", "Groove")
groove.Profile = sketch11
groove.ReferenceAxis = (sketch11, ["Axis0"])
groove.Angle = 360
doc.recompute()

linearpattern = body.newObject("PartDesign::LinearPattern", "LinearPattern")
linearpattern.Originals = [groove]
linearpattern.Direction = (doc.getObject("Y_Axis"), [""])
linearpattern.Mode = "offset"
linearpattern.Offset = 15
linearpattern.Occurrences = 2
body.Tip = linearpattern
doc.recompute()

mirrored2 = body.newObject("PartDesign::Mirrored", "Mirrored001")
mirrored2.Originals = [groove, pocket6]
mirrored2.MirrorPlane = (doc.getObject("YZ_Plane"), [""])
body.Tip = mirrored2

# Sketch on YZ plane
sketch12 = body.newObject("Sketcher::SketchObject", "Sketch011")
sketch12.AttachmentSupport = (doc.getObject("YZ_Plane"), [""])
sketch12.MapMode = "FlatFace"
sketch12.AttachmentOffset = App.Placement(V(0, 0, 143.85), App.Rotation())
add_polygon(sketch12, [(-370, -8), (-370, -1), (-368.4, -2), (-368.4, -8)])  # lines 0-3
sketch12.addGeometry(Part.LineSegment(V(-370, -1, 0), V(-370, -8, 0)), True)  # axis
sketch12.addConstraint(Sketcher.Constraint("Vertical", 0))
sketch12.addConstraint(Sketcher.Constraint("Vertical", 2))
sketch12.addConstraint(Sketcher.Constraint("Horizontal", 3))
sketch12.addConstraint(Sketcher.Constraint("Vertical", 4))
sketch12.addConstraint(Sketcher.Constraint("Coincident", 4, 1, 0, 2))
sketch12.addConstraint(Sketcher.Constraint("Horizontal", 2, 2, 4, 2))
sketch12.addConstraint(Sketcher.Constraint("DistanceY", 2, 2, 2, 1, Q("6 mm")))
sketch12.addConstraint(Sketcher.Constraint("Angle", 1, Q("-31 deg")))
sketch12.addConstraint(Sketcher.Constraint("DistanceX", 0, 2, -1, 1, Q("370 mm")))
sketch12.addConstraint(Sketcher.Constraint("DistanceY", 1, 2, -1, 1, Q("2 mm")))
sketch12.addConstraint(Sketcher.Constraint("DistanceX", 3, 2, 3, 1, Q("1.65 mm")))
groove2 = body.newObject("PartDesign::Groove", "Groove001")
groove2.Profile = sketch12
groove2.ReferenceAxis = (sketch12, ["Axis0"])
groove2.Angle = 360
doc.recompute()

fillet7 = body.newObject("PartDesign::Fillet", "Fillet006")
fillet7.Base = (groove2, edges_at(groove2, [(153.35, -363, -9), (134.35, -363, -9)]))
fillet7.Radius = 2

# Sketch on XY plane
sketch13 = body.newObject("Sketcher::SketchObject", "Sketch012")
sketch13.AttachmentSupport = (doc.getObject("XY_Plane"), [""])
sketch13.MapMode = "FlatFace"
sketch13.AttachmentOffset = App.Placement(V(0, 0, -5), App.Rotation())
sketch13.addGeometry(Part.Circle(V(-205, -155, 0), V(0, 0, 1), 0.5), False)
sketch13.addGeometry(Part.Circle(V(205, -275, 0), V(0, 0, 1), 0.5), False)
sketch13.addConstraint(Sketcher.Constraint("Equal", 0, 1))
sketch13.addConstraint(Sketcher.Constraint("Diameter", 0, Q("1 mm")))
sketch13.addConstraint(Sketcher.Constraint("DistanceX", 0, 3, -1, 1, Q("205 mm")))
sketch13.addConstraint(Sketcher.Constraint("DistanceY", 0, 3, -1, 1, Q("155 mm")))
sketch13.addConstraint(Sketcher.Constraint("DistanceX", -1, 1, 1, 3, Q("205 mm")))
sketch13.addConstraint(Sketcher.Constraint("DistanceY", 1, 3, -1, 1, Q("275 mm")))
doc.recompute()
hole4 = body.newObject("PartDesign::Hole", "Hole003")
hole4.Profile = sketch13
hole4.ThreadType = "None"
hole4.Diameter = 1
hole4.DepthType = "Dimension"
hole4.Depth = 4
hole4.DrillPoint = "Angled"
hole4.DrillPointAngle = 118

doc.recompute()
